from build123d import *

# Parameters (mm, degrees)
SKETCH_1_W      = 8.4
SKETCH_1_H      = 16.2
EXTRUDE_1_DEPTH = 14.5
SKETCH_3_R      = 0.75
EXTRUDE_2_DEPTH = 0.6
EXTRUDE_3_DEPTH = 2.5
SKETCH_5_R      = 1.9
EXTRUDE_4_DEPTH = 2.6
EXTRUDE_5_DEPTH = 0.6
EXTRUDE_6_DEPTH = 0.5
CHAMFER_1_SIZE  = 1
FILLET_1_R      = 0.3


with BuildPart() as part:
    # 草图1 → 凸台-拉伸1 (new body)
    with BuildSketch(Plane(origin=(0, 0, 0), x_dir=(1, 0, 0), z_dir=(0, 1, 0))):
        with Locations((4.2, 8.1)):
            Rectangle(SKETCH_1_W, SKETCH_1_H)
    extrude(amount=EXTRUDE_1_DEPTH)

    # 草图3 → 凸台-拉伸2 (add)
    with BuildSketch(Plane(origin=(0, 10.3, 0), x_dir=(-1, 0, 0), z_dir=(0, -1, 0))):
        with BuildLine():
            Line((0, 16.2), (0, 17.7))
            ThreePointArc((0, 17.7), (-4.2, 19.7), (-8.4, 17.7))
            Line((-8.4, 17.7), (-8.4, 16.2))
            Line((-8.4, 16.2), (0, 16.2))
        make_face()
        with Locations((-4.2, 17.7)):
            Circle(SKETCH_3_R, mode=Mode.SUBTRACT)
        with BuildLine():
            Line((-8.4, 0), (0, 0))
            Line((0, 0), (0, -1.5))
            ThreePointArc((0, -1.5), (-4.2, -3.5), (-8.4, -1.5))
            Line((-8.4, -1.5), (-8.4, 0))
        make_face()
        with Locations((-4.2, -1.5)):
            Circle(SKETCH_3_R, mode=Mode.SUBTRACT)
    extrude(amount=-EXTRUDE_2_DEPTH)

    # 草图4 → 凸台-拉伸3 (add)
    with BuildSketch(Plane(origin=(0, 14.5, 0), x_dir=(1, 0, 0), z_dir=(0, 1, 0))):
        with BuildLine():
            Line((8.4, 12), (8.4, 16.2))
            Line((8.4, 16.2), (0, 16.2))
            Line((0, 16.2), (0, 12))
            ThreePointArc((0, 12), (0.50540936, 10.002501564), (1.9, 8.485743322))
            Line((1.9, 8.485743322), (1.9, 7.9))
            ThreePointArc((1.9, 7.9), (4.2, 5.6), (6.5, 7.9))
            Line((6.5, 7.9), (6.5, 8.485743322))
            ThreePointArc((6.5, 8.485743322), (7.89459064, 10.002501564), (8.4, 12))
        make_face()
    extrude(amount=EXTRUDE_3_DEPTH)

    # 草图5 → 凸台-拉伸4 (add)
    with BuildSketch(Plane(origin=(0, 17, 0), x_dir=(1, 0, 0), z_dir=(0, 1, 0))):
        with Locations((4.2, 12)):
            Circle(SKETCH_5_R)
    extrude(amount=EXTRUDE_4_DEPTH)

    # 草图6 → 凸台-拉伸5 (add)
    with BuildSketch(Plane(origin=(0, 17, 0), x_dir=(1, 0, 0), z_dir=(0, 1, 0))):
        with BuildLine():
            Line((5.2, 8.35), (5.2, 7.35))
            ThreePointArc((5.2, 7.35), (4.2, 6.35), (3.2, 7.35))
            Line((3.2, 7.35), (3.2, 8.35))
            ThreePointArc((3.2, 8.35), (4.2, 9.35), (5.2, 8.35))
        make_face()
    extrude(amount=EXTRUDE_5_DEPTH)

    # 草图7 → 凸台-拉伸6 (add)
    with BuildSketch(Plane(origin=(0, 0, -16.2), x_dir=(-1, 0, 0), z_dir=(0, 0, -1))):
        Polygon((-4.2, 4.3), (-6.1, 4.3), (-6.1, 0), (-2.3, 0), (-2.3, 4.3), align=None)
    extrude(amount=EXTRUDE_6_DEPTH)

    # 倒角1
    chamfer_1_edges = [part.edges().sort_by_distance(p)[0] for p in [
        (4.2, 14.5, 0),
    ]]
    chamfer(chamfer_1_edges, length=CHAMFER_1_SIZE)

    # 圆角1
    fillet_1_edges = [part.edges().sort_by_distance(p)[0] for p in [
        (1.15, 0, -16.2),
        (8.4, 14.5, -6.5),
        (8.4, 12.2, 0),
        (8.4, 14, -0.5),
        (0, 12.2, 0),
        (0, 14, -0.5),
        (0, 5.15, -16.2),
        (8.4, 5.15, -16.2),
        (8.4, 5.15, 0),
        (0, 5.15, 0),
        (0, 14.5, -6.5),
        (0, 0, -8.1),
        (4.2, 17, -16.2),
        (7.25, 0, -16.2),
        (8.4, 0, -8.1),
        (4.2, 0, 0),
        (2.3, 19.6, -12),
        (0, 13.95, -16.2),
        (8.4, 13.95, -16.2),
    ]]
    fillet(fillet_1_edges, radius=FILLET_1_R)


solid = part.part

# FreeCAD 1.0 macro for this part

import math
import FreeCAD as App
import Part
import Sketcher
from FreeCAD import Vector
Q = App.Units.Quantity


def edges_at(feature, points):
    """Names of the edges that pass closest to the given points."""
    edges = feature.Shape.Edges
    near = lambda p: min(range(len(edges)), key=lambda i: edges[i].distToShape(Part.Vertex(*p))[0])
    return sorted({f"Edge{near(p) + 1}" for p in points})


def add_polygon(sketch, points):
    """Adds a closed chain of lines whose ends are joined by coincident constraints."""
    first, n = sketch.GeometryCount, len(points)
    for a, b in zip(points, points[1:] + points[:1]):
        sketch.addGeometry(Part.LineSegment(App.Vector(*a, 0), App.Vector(*b, 0)), False)
    for i in range(n):
        sketch.addConstraint(Sketcher.Constraint("Coincident", first + i, 2, first + (i + 1) % n, 1))

doc = App.newDocument("Part")
body = doc.addObject("PartDesign::Body", "Body")

# Sketch on XZ plane
sketch1 = body.newObject("Sketcher::SketchObject", "Sketch")
sketch1.AttachmentSupport = (doc.getObject("XZ_Plane"), [""])
sketch1.MapMode = "FlatFace"
add_polygon(sketch1, [(0, -16), (0, 0), (8, 0), (8, -16)])  # lines 0-3
sketch1.addConstraint([
    Sketcher.Constraint("Vertical", 0),
    Sketcher.Constraint("Horizontal", 1),
    Sketcher.Constraint("Vertical", 2),
    Sketcher.Constraint("Horizontal", 3),
    Sketcher.Constraint("Coincident", 0, 2, -1, 1),
    Sketcher.Constraint("DistanceX", 1, 1, 1, 2, Q("8.4 mm")),
    Sketcher.Constraint("DistanceY", 0, 1, 0, 2, Q("16.2 mm")),
])
pad1 = body.newObject("PartDesign::Pad", "Pad")
pad1.Profile = sketch1
pad1.Length = 14.5
pad1.Reversed = True

# Sketch on XZ plane
sketch2 = body.newObject("Sketcher::SketchObject", "Sketch001")
sketch2.AttachmentSupport = (doc.getObject("XZ_Plane"), [""])
sketch2.MapMode = "FlatFace"
sketch2.AttachmentOffset = App.Placement(Vector(0, 0, -10.3), App.Rotation())
sketch2.addGeometry([
    Part.LineSegment(Vector(0, -16.2, 0), Vector(0, -17.7, 0)),  # 0
    Part.ArcOfCircle(Part.Circle(Vector(4.2, -14.3, 0), Vector(0, 0, 1), 5.4), math.radians(-141), math.radians(-39)),  # 1
    Part.LineSegment(Vector(8.4, -17.7, 0), Vector(8.4, -16.2, 0)),  # 2
    Part.LineSegment(Vector(8.4, -16.2, 0), Vector(0, -16.2, 0)),  # 3
    Part.Circle(Vector(4.2, -17.7, 0), Vector(0, 0, 1), 0.8),  # 4
    Part.LineSegment(Vector(0, 0, 0), Vector(8.4, 0, 0)),  # 5
    Part.LineSegment(Vector(8.4, 0, 0), Vector(8.4, 1.5, 0)),  # 6
    Part.ArcOfCircle(Part.Circle(Vector(4.2, -1.9, 0), Vector(0, 0, 1), 5.4), math.radians(39), math.radians(141)),  # 7
    Part.LineSegment(Vector(0, 1.5, 0), Vector(0, 0, 0)),  # 8
    Part.Circle(Vector(4.2, 1.5, 0), Vector(0, 0, 1), 0.8),  # 9
], False)
sketch2.addConstraint([
    Sketcher.Constraint("Coincident", 0, 2, 1, 1),
    Sketcher.Constraint("Coincident", 1, 2, 2, 1),
    Sketcher.Constraint("Coincident", 2, 2, 3, 1),
    Sketcher.Constraint("Coincident", 3, 2, 0, 1),
    Sketcher.Constraint("Coincident", 5, 2, 6, 1),
    Sketcher.Constraint("Coincident", 6, 2, 7, 1),
    Sketcher.Constraint("Coincident", 7, 2, 8, 1),
    Sketcher.Constraint("Coincident", 8, 2, 5, 1),
    Sketcher.Constraint("Vertical", 0),
    Sketcher.Constraint("Vertical", 2),
    Sketcher.Constraint("Horizontal", 3),
    Sketcher.Constraint("Horizontal", 5),
    Sketcher.Constraint("Vertical", 6),
    Sketcher.Constraint("Vertical", 8),
    Sketcher.Constraint("Coincident", 8, 2, -1, 1),
    Sketcher.Constraint("Equal", 1, 7),
    Sketcher.Constraint("Equal", 4, 9),
    Sketcher.Constraint("PointOnObject", 0, 2, -2),
    Sketcher.Constraint("Horizontal", 4, 3, 0, 2),
    Sketcher.Constraint("Horizontal", 0, 2, 1, 2),
    Sketcher.Constraint("Horizontal", 9, 3, 6, 2),
    Sketcher.Constraint("Horizontal", 6, 2, 7, 2),
    Sketcher.Constraint("Vertical", 1, 3, 4, 3),
    Sketcher.Constraint("Vertical", 4, 3, 7, 3),
    Sketcher.Constraint("Vertical", 7, 3, 9, 3),
    Sketcher.Constraint("Equal", 2, 6),
    Sketcher.Constraint("Diameter", 4, Q("1.5 mm")),
    Sketcher.Constraint("Radius", 1, Q("5.41 mm")),
    Sketcher.Constraint("DistanceX", 3, 2, 3, 1, Q("8.4 mm")),
    Sketcher.Constraint("DistanceY", 0, 2, 0, 1, Q("1.5 mm")),
    Sketcher.Constraint("DistanceY", 4, 3, -1, 1, Q("17.7 mm")),
])
pad2 = body.newObject("PartDesign::Pad", "Pad001")
pad2.Profile = sketch2
pad2.Length = 0.6
pad2.Reversed = True

# Sketch on XZ plane
sketch3 = body.newObject("Sketcher::SketchObject", "Sketch002")
sketch3.AttachmentSupport = (doc.getObject("XZ_Plane"), [""])
sketch3.MapMode = "FlatFace"
sketch3.AttachmentOffset = App.Placement(Vector(0, 0, -14.5), App.Rotation())
sketch3.addGeometry([
    Part.LineSegment(Vector(8.4, -12, 0), Vector(8.4, -16.2, 0)),  # 0
    Part.LineSegment(Vector(8.4, -16.2, 0), Vector(0, -16.2, 0)),  # 1
    Part.LineSegment(Vector(0, -16.2, 0), Vector(0, -12, 0)),  # 2
    Part.ArcOfCircle(Part.Circle(Vector(4.2, -12, 0), Vector(0, 0, 1), 4.2), math.radians(123), math.radians(180)),  # 3
    Part.LineSegment(Vector(1.9, -8.5, 0), Vector(1.9, -7.9, 0)),  # 4
    Part.ArcOfCircle(Part.Circle(Vector(4.2, -7.9, 0), Vector(0, 0, 1), 2.3), math.radians(0), math.radians(180)),  # 5
    Part.LineSegment(Vector(6.5, -7.9, 0), Vector(6.5, -8.5, 0)),  # 6
    Part.ArcOfCircle(Part.Circle(Vector(4.2, -12, 0), Vector(0, 0, 1), 4.2), math.radians(0), math.radians(57)),  # 7
], False)
sketch3.addConstraint([
    Sketcher.Constraint("Coincident", 0, 2, 1, 1),
    Sketcher.Constraint("Coincident", 1, 2, 2, 1),
    Sketcher.Constraint("Tangent", 2, 2, 3, 2),
    Sketcher.Constraint("Coincident", 3, 1, 4, 1),
    Sketcher.Constraint("Tangent", 4, 2, 5, 2),
    Sketcher.Constraint("Tangent", 5, 1, 6, 1),
    Sketcher.Constraint("Coincident", 6, 2, 7, 2),
    Sketcher.Constraint("Tangent", 7, 1, 0, 1),
    Sketcher.Constraint("Vertical", 0),
    Sketcher.Constraint("Horizontal", 1),
    Sketcher.Constraint("Vertical", 2),
    Sketcher.Constraint("Vertical", 4),
    Sketcher.Constraint("Vertical", 6),
    Sketcher.Constraint("Coincident", 7, 3, 3, 3),
    Sketcher.Constraint("Equal", 3, 7),
    Sketcher.Constraint("PointOnObject", 1, 2, -2),
    Sketcher.Constraint("Horizontal", 3, 1, 6, 2),
    Sketcher.Constraint("Radius", 3, Q("4.2 mm")),
    Sketcher.Constraint("Radius", 5, Q("2.3 mm")),
    Sketcher.Constraint("DistanceY", 0, 2, 0, 1, Q("4.2 mm")),
    Sketcher.Constraint("DistanceY", 3, 3, -1, 1, Q("12 mm")),
    Sketcher.Constraint("DistanceY", 5, 3, -1, 1, Q("7.9 mm")),
])
pad3 = body.newObject("PartDesign::Pad", "Pad002")
pad3.Profile = sketch3
pad3.Length = 2.5
pad3.Reversed = True

# Sketch on XZ plane
sketch4 = body.newObject("Sketcher::SketchObject", "Sketch003")
sketch4.AttachmentSupport = (doc.getObject("XZ_Plane"), [""])
sketch4.MapMode = "FlatFace"
sketch4.AttachmentOffset = App.Placement(Vector(0, 0, -17), App.Rotation())
sketch4.addGeometry(Part.Circle(Vector(4.2, -12, 0), Vector(0, 0, 1), 1.9), False)
sketch4.addConstraint([
    Sketcher.Constraint("Diameter", 0, Q("3.8 mm")),
    Sketcher.Constraint("DistanceY", 0, 3, -1, 1, Q("12 mm")),
    Sketcher.Constraint("DistanceX", -1, 1, 0, 3, Q("4.2 mm")),
])
pad4 = body.newObject("PartDesign::Pad", "Pad003")
pad4.Profile = sketch4
pad4.Length = 2.6
pad4.Reversed = True

# Sketch on XZ plane
sketch5 = body.newObject("Sketcher::SketchObject", "Sketch004")
sketch5.AttachmentSupport = (doc.getObject("XZ_Plane"), [""])
sketch5.MapMode = "FlatFace"
sketch5.AttachmentOffset = App.Placement(Vector(0, 0, -17), App.Rotation())
sketch5.addGeometry([
    Part.LineSegment(Vector(5.2, -7.3, 0), Vector(5.2, -8.3, 0)),
    Part.ArcOfCircle(Part.Circle(Vector(4.2, -8.3, 0), Vector(0, 0, 1), 1), math.radians(180), math.radians(360)),
    Part.LineSegment(Vector(3.2, -8.3, 0), Vector(3.2, -7.3, 0)),
    Part.ArcOfCircle(Part.Circle(Vector(4.2, -7.3, 0), Vector(0, 0, 1), 1), math.radians(0), math.radians(180)),
], False)
sketch5.addConstraint([
    Sketcher.Constraint("Tangent", 0, 2, 1, 2),
    Sketcher.Constraint("Tangent", 1, 1, 2, 1),
    Sketcher.Constraint("Tangent", 2, 2, 3, 2),
    Sketcher.Constraint("Tangent", 3, 1, 0, 1),
    Sketcher.Constraint("Vertical", 0),
    Sketcher.Constraint("Vertical", 2),
    Sketcher.Constraint("Radius", 1, Q("1 mm")),
    Sketcher.Constraint("DistanceY", 0, 2, 0, 1, Q("1 mm")),
    Sketcher.Constraint("DistanceX", -1, 1, 1, 3, Q("4.2 mm")),
    Sketcher.Constraint("DistanceY", 1, 3, -1, 1, Q("8.35 mm")),
])
pad5 = body.newObject("PartDesign::Pad", "Pad004")
pad5.Profile = sketch5
pad5.Length = 0.6
pad5.Reversed = True

# Sketch on XY plane
sketch6 = body.newObject("Sketcher::SketchObject", "Sketch005")
sketch6.AttachmentSupport = (doc.getObject("XY_Plane"), [""])
sketch6.MapMode = "FlatFace"
sketch6.AttachmentOffset = App.Placement(Vector(0, 0, -16.2), App.Rotation())
add_polygon(sketch6, [(6.1, 4.3), (6.1, 0), (2.3, 0), (2.3, 4.3)])  # lines 0-3
sketch6.addConstraint([
    Sketcher.Constraint("Vertical", 0),
    Sketcher.Constraint("Horizontal", 1),
    Sketcher.Constraint("Vertical", 2),
    Sketcher.Constraint("Horizontal", 3),
    Sketcher.Constraint("PointOnObject", 0, 2, -1),
    Sketcher.Constraint("DistanceX", 1, 2, 1, 1, Q("3.8 mm")),
    Sketcher.Constraint("DistanceY", 0, 2, 0, 1, Q("4.3 mm")),
    Sketcher.Constraint("DistanceX", -1, 1, 0, 2, Q("6.1 mm")),
])
pad6 = body.newObject("PartDesign::Pad", "Pad005")
pad6.Profile = sketch6
pad6.Length = 0.5
pad6.Reversed = True
doc.recompute()

chamfer = body.newObject("PartDesign::Chamfer", "Chamfer")
chamfer.Base = (pad6, edges_at(pad6, [(4.2, 14.5, 0)]))
chamfer.Size = 1
doc.recompute()

fillet = body.newObject("PartDesign::Fillet", "Fillet")
fillet.Base = (chamfer, edges_at(chamfer, [
    (1.15, 0, -16.2),
    (8.4, 14.5, -6.5),
    (8.4, 12.2, 0),
    (8.4, 14, -0.5),
    (0, 12.2, 0),
    (0, 14, -0.5),
    (0, 5.15, -16.2),
    (8.4, 5.15, -16.2),
    (8.4, 5.15, 0),
    (0, 5.15, 0),
    (0, 14.5, -6.5),
    (0, 0, -8.1),
    (4.2, 17, -16.2),
    (7.25, 0, -16.2),
    (8.4, 0, -8.1),
    (4.2, 0, 0),
    (2.3, 19.6, -12),
    (0, 13.95, -16.2),
    (8.4, 13.95, -16.2),
]))
fillet.Radius = 0.3

doc.recompute()
